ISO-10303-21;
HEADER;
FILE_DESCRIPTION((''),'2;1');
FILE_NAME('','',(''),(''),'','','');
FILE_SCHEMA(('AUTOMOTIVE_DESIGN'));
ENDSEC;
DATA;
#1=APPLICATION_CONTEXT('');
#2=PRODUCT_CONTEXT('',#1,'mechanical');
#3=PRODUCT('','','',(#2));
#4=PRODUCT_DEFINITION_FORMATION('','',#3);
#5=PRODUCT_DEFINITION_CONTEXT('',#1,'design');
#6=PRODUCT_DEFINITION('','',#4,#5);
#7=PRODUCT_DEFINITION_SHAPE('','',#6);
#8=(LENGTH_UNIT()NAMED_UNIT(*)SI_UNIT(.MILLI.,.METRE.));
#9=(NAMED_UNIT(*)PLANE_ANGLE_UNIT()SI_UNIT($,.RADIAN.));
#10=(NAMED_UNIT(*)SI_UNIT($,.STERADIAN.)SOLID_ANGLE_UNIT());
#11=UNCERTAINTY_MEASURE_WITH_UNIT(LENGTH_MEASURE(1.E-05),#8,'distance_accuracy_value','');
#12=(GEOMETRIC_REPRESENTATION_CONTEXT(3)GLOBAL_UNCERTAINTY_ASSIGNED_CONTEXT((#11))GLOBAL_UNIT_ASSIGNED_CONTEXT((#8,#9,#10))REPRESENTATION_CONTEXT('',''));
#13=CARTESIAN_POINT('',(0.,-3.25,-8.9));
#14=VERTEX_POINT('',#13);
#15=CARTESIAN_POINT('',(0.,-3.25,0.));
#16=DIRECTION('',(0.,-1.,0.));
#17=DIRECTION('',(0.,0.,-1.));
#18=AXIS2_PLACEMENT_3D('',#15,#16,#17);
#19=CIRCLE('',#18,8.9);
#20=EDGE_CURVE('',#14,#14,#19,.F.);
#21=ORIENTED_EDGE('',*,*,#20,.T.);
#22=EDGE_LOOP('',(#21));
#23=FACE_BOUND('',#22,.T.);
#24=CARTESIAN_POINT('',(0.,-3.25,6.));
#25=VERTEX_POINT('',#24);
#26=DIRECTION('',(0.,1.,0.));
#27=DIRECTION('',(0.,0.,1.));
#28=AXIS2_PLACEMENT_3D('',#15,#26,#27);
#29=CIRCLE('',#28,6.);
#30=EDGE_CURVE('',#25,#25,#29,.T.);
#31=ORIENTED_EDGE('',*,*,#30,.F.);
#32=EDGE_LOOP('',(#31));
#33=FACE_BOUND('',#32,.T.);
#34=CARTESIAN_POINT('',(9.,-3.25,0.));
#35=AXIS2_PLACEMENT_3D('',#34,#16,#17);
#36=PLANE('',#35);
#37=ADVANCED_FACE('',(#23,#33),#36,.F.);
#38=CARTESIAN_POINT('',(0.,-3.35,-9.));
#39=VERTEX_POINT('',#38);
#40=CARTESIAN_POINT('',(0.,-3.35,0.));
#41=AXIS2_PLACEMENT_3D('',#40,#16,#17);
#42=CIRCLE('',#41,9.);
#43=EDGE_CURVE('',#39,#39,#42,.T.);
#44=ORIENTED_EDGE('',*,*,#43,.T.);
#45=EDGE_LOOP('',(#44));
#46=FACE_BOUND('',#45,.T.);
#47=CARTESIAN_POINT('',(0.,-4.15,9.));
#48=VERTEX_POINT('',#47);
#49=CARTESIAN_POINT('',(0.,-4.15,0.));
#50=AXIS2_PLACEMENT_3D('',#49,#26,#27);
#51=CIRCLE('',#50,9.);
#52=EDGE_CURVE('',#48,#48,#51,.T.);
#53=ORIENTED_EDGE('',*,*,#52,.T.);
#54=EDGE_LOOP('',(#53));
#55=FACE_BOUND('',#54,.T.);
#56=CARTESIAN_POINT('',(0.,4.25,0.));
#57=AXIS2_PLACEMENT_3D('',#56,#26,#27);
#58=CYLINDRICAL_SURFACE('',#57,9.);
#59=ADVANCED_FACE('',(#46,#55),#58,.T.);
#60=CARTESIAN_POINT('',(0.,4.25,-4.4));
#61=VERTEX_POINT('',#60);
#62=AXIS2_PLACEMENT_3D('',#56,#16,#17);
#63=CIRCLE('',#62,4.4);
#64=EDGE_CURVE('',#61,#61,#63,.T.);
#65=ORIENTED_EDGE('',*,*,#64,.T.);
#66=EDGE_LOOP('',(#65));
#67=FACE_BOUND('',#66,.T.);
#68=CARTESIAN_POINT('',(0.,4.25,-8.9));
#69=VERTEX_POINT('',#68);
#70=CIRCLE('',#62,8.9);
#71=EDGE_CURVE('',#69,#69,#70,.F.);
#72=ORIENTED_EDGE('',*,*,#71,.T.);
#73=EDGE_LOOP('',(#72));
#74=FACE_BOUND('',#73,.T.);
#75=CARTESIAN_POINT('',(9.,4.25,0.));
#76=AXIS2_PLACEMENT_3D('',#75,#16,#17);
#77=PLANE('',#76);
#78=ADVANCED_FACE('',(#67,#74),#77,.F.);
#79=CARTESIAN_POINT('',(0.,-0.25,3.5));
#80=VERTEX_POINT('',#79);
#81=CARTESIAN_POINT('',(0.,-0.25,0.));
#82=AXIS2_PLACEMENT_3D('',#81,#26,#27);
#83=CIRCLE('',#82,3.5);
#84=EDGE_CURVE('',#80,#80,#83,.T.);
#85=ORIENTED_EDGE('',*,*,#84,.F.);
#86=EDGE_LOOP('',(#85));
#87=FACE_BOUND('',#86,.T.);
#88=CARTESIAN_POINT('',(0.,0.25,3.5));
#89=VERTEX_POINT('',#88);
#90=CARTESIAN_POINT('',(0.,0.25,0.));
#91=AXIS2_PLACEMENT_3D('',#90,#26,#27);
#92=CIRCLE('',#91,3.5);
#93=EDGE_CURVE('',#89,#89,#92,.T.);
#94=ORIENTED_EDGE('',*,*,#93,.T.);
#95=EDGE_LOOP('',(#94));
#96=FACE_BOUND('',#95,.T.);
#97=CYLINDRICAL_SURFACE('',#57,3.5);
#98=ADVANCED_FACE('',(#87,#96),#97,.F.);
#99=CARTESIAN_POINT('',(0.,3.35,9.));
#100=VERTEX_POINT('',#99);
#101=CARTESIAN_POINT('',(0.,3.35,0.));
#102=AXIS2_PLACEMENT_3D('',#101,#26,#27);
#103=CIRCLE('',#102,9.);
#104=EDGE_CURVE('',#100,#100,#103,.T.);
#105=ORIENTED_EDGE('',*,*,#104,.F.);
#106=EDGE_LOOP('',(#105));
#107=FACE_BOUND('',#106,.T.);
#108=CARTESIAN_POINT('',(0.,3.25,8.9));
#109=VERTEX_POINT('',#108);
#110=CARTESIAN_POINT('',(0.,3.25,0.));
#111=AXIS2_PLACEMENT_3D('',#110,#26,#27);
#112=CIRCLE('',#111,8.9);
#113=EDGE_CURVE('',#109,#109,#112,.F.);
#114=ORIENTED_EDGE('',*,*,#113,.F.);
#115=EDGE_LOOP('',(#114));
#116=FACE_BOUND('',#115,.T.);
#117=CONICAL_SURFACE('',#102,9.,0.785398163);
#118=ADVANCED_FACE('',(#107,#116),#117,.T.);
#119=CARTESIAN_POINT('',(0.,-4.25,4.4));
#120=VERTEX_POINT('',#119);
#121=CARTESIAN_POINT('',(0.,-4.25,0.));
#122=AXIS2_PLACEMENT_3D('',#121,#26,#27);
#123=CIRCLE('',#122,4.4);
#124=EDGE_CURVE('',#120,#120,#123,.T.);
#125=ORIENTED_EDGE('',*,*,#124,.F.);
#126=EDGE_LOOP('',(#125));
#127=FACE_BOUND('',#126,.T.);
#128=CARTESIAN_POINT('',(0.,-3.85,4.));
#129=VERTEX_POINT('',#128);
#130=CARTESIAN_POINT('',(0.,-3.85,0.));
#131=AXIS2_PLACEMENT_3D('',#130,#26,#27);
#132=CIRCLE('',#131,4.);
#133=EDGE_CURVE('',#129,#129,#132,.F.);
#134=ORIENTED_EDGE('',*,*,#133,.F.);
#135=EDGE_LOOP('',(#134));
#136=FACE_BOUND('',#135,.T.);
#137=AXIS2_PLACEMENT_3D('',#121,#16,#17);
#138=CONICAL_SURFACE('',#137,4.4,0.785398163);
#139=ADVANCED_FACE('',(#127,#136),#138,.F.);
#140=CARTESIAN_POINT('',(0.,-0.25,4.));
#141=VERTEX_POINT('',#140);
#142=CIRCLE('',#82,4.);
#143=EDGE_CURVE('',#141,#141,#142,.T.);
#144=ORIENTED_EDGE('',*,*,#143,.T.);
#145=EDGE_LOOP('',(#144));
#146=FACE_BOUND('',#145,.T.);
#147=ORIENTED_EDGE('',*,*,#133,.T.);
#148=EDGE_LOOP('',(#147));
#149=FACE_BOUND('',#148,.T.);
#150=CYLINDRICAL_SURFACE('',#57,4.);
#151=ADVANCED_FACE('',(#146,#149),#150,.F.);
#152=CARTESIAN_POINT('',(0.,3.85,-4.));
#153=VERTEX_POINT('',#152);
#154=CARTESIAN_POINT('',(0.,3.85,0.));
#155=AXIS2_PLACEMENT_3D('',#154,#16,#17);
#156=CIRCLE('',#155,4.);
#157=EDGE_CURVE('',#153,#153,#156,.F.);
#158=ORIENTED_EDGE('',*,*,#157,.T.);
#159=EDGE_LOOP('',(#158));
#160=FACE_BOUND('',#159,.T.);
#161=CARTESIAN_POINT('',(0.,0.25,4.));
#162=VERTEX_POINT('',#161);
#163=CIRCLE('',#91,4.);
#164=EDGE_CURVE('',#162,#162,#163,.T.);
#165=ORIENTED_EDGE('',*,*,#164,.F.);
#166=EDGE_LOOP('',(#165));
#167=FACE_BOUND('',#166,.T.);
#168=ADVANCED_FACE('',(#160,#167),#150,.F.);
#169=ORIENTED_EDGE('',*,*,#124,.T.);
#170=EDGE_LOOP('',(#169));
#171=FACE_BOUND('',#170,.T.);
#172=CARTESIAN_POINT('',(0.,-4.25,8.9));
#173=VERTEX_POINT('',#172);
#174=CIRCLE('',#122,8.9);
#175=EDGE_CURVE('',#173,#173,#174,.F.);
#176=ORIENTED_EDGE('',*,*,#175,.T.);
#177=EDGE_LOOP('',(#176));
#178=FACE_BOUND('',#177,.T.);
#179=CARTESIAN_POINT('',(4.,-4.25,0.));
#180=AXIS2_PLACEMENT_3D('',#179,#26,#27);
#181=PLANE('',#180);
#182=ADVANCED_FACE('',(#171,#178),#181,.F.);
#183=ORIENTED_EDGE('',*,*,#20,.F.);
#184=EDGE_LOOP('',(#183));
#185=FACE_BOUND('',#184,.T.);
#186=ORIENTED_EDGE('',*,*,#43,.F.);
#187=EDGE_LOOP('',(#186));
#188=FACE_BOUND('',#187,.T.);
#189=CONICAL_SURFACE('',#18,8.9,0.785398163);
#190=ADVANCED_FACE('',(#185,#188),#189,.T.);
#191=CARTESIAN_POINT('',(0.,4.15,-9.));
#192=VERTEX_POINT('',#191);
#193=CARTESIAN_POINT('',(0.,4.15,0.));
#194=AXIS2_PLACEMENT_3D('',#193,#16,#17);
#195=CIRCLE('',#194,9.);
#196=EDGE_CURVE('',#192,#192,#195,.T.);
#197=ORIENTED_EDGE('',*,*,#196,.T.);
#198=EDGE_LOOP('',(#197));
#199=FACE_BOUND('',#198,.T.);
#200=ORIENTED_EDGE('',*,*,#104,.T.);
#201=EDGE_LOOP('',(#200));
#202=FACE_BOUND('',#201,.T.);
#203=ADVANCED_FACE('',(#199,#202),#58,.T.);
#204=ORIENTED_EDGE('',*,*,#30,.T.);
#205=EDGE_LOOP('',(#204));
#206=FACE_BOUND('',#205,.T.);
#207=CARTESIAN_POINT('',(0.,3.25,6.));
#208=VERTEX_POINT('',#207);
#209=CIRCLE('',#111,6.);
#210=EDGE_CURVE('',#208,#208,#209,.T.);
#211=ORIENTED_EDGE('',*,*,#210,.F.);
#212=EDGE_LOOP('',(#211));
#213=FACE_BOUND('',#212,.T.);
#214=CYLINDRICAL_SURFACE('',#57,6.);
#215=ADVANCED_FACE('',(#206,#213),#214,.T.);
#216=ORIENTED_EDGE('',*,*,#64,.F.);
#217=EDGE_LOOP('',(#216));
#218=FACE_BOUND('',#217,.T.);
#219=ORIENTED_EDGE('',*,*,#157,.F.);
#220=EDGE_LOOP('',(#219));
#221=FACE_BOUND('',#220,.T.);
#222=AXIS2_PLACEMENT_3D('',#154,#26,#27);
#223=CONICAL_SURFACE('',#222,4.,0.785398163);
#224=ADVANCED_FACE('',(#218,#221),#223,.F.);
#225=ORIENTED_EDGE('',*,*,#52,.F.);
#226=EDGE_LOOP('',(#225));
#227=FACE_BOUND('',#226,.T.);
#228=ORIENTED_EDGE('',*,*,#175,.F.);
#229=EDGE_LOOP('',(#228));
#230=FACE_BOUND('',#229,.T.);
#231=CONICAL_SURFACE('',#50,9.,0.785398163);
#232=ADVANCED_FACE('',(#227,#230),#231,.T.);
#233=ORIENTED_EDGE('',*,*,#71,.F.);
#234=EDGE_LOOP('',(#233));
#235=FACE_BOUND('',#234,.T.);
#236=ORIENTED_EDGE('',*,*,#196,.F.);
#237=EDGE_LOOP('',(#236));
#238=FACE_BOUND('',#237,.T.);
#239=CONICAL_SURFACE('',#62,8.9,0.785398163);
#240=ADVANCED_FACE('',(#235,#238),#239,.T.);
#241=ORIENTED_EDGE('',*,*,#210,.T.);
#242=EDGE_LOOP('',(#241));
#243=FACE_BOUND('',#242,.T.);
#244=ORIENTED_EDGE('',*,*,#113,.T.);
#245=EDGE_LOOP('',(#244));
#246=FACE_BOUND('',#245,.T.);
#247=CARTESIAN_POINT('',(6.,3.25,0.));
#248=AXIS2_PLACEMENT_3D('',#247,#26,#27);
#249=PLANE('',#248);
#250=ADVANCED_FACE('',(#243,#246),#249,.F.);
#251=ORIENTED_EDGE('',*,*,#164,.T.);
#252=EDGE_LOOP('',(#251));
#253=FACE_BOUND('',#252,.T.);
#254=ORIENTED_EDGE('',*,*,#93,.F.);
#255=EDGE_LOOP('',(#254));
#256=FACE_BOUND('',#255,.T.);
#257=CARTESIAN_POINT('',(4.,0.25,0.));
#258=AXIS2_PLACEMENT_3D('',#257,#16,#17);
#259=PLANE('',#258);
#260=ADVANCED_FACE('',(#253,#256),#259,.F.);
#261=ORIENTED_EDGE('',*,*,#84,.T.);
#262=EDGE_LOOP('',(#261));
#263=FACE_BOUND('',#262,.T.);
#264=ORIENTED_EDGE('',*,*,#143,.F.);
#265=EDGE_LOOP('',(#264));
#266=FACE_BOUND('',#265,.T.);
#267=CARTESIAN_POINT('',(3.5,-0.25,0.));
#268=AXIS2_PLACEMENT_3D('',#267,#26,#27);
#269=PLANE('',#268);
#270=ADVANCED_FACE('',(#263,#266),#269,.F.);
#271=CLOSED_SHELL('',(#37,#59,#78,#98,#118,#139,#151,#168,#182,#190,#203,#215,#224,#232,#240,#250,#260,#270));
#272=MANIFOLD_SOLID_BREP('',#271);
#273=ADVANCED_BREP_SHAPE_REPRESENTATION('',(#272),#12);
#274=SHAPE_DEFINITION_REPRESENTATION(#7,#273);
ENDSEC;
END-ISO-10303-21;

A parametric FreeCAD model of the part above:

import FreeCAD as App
import Part
import Sketcher

V = App.Vector


def edges_at(feature, points):
    """Names of the edges that pass closest to the given points."""
    edges = feature.Shape.Edges
    near = lambda p: min(range(len(edges)), key=lambda i: edges[i].distToShape(Part.Vertex(*p))[0])
    return sorted({f"Edge{near(p) + 1}" for p in points})


def add_polygon(sketch, points):
    """Adds a closed chain of lines whose ends are joined by coincident constraints."""
    first, n = sketch.GeometryCount, len(points)
    for a, b in zip(points, points[1:] + points[:1]):
        sketch.addGeometry(Part.LineSegment(App.Vector(*a, 0), App.Vector(*b, 0)), False)
    for i in range(n):
        sketch.addConstraint(Sketcher.Constraint("Coincident", first + i, 2, first + (i + 1) % n, 1))

doc = App.newDocument("Part")
body = doc.addObject("PartDesign::Body", "Body")

sketch1 = body.newObject("Sketcher::SketchObject", "Sketch")
sketch1.AttachmentSupport = (doc.getObject("XY_Plane"), [""])
sketch1.MapMode = "FlatFace"
add_polygon(sketch1, [(6, -3.2), (6, 3.2), (9, 3.2), (9, 4.2), (4, 4.2), (4, 0.2), (3.5, 0.2), (3.5, -0.2), (4, -0.2), (4, -4.2), (9, -4.2), (9, -3.2)])
sketch1.addConstraint(Sketcher.Constraint("Vertical", 0))
sketch1.addConstraint(Sketcher.Constraint("Horizontal", 1))
sketch1.addConstraint(Sketcher.Constraint("Vertical", 2))
sketch1.addConstraint(Sketcher.Constraint("Horizontal", 3))
sketch1.addConstraint(Sketcher.Constraint("Vertical", 4))
sketch1.addConstraint(Sketcher.Constraint("Horizontal", 5))
sketch1.addConstraint(Sketcher.Constraint("Vertical", 6))
sketch1.addConstraint(Sketcher.Constraint("Horizontal", 7))
sketch1.addConstraint(Sketcher.Constraint("Vertical", 8))
sketch1.addConstraint(Sketcher.Constraint("Horizontal", 9))
sketch1.addConstraint(Sketcher.Constraint("Vertical", 10))
sketch1.addConstraint(Sketcher.Constraint("Horizontal", 11))
sketch1.addConstraint(Sketcher.Constraint("Symmetric", 4, 2, 7, 2, -1))
sketch1.addConstraint(Sketcher.Constraint("Symmetric", 2, 2, 9, 2, -1))
sketch1.addConstraint(Sketcher.Constraint("Equal", 7, 6))
sketch1.addConstraint(Sketcher.Constraint("Equal", 2, 10))
sketch1.addConstraint(Sketcher.Constraint("DistanceX", 1, 1, 1, 2, 3.0))
sketch1.addConstraint(Sketcher.Constraint("DistanceX", 3, 2, 3, 1, 5.0))
sketch1.addConstraint(Sketcher.Constraint("DistanceY", 2, 1, 2, 2, 1.0))
sketch1.addConstraint(Sketcher.Constraint("DistanceY", 4, 2, 4, 1, 4.0))
sketch1.addConstraint(Sketcher.Constraint("DistanceX", 5, 2, 5, 1, 0.5))
sketch1.addConstraint(Sketcher.Constraint("DistanceX", -1, 1, 0, 2, 6.0))
revolution = body.newObject("PartDesign::Revolution", "Revolution")
revolution.Profile = sketch1
revolution.ReferenceAxis = (sketch1, ["V_Axis"])
revolution.Angle = 360
doc.recompute()

chamfer = body.newObject("PartDesign::Chamfer", "Chamfer")
chamfer.Base = (revolution, edges_at(revolution, [(-4, -4.25, 0), (-4, 4.25, 0)]))
chamfer.Size = 0.4
doc.recompute()

chamfer2 = body.newObject("PartDesign::Chamfer", "Chamfer001")
chamfer2.Base = (chamfer, edges_at(chamfer, [
    (-9, 4.25, 0),
    (-9, 3.25, 0),
    (-9, -3.25, 0),
    (-9, -4.25, 0),
]))
chamfer2.Size = 0.1

doc.recompute()
